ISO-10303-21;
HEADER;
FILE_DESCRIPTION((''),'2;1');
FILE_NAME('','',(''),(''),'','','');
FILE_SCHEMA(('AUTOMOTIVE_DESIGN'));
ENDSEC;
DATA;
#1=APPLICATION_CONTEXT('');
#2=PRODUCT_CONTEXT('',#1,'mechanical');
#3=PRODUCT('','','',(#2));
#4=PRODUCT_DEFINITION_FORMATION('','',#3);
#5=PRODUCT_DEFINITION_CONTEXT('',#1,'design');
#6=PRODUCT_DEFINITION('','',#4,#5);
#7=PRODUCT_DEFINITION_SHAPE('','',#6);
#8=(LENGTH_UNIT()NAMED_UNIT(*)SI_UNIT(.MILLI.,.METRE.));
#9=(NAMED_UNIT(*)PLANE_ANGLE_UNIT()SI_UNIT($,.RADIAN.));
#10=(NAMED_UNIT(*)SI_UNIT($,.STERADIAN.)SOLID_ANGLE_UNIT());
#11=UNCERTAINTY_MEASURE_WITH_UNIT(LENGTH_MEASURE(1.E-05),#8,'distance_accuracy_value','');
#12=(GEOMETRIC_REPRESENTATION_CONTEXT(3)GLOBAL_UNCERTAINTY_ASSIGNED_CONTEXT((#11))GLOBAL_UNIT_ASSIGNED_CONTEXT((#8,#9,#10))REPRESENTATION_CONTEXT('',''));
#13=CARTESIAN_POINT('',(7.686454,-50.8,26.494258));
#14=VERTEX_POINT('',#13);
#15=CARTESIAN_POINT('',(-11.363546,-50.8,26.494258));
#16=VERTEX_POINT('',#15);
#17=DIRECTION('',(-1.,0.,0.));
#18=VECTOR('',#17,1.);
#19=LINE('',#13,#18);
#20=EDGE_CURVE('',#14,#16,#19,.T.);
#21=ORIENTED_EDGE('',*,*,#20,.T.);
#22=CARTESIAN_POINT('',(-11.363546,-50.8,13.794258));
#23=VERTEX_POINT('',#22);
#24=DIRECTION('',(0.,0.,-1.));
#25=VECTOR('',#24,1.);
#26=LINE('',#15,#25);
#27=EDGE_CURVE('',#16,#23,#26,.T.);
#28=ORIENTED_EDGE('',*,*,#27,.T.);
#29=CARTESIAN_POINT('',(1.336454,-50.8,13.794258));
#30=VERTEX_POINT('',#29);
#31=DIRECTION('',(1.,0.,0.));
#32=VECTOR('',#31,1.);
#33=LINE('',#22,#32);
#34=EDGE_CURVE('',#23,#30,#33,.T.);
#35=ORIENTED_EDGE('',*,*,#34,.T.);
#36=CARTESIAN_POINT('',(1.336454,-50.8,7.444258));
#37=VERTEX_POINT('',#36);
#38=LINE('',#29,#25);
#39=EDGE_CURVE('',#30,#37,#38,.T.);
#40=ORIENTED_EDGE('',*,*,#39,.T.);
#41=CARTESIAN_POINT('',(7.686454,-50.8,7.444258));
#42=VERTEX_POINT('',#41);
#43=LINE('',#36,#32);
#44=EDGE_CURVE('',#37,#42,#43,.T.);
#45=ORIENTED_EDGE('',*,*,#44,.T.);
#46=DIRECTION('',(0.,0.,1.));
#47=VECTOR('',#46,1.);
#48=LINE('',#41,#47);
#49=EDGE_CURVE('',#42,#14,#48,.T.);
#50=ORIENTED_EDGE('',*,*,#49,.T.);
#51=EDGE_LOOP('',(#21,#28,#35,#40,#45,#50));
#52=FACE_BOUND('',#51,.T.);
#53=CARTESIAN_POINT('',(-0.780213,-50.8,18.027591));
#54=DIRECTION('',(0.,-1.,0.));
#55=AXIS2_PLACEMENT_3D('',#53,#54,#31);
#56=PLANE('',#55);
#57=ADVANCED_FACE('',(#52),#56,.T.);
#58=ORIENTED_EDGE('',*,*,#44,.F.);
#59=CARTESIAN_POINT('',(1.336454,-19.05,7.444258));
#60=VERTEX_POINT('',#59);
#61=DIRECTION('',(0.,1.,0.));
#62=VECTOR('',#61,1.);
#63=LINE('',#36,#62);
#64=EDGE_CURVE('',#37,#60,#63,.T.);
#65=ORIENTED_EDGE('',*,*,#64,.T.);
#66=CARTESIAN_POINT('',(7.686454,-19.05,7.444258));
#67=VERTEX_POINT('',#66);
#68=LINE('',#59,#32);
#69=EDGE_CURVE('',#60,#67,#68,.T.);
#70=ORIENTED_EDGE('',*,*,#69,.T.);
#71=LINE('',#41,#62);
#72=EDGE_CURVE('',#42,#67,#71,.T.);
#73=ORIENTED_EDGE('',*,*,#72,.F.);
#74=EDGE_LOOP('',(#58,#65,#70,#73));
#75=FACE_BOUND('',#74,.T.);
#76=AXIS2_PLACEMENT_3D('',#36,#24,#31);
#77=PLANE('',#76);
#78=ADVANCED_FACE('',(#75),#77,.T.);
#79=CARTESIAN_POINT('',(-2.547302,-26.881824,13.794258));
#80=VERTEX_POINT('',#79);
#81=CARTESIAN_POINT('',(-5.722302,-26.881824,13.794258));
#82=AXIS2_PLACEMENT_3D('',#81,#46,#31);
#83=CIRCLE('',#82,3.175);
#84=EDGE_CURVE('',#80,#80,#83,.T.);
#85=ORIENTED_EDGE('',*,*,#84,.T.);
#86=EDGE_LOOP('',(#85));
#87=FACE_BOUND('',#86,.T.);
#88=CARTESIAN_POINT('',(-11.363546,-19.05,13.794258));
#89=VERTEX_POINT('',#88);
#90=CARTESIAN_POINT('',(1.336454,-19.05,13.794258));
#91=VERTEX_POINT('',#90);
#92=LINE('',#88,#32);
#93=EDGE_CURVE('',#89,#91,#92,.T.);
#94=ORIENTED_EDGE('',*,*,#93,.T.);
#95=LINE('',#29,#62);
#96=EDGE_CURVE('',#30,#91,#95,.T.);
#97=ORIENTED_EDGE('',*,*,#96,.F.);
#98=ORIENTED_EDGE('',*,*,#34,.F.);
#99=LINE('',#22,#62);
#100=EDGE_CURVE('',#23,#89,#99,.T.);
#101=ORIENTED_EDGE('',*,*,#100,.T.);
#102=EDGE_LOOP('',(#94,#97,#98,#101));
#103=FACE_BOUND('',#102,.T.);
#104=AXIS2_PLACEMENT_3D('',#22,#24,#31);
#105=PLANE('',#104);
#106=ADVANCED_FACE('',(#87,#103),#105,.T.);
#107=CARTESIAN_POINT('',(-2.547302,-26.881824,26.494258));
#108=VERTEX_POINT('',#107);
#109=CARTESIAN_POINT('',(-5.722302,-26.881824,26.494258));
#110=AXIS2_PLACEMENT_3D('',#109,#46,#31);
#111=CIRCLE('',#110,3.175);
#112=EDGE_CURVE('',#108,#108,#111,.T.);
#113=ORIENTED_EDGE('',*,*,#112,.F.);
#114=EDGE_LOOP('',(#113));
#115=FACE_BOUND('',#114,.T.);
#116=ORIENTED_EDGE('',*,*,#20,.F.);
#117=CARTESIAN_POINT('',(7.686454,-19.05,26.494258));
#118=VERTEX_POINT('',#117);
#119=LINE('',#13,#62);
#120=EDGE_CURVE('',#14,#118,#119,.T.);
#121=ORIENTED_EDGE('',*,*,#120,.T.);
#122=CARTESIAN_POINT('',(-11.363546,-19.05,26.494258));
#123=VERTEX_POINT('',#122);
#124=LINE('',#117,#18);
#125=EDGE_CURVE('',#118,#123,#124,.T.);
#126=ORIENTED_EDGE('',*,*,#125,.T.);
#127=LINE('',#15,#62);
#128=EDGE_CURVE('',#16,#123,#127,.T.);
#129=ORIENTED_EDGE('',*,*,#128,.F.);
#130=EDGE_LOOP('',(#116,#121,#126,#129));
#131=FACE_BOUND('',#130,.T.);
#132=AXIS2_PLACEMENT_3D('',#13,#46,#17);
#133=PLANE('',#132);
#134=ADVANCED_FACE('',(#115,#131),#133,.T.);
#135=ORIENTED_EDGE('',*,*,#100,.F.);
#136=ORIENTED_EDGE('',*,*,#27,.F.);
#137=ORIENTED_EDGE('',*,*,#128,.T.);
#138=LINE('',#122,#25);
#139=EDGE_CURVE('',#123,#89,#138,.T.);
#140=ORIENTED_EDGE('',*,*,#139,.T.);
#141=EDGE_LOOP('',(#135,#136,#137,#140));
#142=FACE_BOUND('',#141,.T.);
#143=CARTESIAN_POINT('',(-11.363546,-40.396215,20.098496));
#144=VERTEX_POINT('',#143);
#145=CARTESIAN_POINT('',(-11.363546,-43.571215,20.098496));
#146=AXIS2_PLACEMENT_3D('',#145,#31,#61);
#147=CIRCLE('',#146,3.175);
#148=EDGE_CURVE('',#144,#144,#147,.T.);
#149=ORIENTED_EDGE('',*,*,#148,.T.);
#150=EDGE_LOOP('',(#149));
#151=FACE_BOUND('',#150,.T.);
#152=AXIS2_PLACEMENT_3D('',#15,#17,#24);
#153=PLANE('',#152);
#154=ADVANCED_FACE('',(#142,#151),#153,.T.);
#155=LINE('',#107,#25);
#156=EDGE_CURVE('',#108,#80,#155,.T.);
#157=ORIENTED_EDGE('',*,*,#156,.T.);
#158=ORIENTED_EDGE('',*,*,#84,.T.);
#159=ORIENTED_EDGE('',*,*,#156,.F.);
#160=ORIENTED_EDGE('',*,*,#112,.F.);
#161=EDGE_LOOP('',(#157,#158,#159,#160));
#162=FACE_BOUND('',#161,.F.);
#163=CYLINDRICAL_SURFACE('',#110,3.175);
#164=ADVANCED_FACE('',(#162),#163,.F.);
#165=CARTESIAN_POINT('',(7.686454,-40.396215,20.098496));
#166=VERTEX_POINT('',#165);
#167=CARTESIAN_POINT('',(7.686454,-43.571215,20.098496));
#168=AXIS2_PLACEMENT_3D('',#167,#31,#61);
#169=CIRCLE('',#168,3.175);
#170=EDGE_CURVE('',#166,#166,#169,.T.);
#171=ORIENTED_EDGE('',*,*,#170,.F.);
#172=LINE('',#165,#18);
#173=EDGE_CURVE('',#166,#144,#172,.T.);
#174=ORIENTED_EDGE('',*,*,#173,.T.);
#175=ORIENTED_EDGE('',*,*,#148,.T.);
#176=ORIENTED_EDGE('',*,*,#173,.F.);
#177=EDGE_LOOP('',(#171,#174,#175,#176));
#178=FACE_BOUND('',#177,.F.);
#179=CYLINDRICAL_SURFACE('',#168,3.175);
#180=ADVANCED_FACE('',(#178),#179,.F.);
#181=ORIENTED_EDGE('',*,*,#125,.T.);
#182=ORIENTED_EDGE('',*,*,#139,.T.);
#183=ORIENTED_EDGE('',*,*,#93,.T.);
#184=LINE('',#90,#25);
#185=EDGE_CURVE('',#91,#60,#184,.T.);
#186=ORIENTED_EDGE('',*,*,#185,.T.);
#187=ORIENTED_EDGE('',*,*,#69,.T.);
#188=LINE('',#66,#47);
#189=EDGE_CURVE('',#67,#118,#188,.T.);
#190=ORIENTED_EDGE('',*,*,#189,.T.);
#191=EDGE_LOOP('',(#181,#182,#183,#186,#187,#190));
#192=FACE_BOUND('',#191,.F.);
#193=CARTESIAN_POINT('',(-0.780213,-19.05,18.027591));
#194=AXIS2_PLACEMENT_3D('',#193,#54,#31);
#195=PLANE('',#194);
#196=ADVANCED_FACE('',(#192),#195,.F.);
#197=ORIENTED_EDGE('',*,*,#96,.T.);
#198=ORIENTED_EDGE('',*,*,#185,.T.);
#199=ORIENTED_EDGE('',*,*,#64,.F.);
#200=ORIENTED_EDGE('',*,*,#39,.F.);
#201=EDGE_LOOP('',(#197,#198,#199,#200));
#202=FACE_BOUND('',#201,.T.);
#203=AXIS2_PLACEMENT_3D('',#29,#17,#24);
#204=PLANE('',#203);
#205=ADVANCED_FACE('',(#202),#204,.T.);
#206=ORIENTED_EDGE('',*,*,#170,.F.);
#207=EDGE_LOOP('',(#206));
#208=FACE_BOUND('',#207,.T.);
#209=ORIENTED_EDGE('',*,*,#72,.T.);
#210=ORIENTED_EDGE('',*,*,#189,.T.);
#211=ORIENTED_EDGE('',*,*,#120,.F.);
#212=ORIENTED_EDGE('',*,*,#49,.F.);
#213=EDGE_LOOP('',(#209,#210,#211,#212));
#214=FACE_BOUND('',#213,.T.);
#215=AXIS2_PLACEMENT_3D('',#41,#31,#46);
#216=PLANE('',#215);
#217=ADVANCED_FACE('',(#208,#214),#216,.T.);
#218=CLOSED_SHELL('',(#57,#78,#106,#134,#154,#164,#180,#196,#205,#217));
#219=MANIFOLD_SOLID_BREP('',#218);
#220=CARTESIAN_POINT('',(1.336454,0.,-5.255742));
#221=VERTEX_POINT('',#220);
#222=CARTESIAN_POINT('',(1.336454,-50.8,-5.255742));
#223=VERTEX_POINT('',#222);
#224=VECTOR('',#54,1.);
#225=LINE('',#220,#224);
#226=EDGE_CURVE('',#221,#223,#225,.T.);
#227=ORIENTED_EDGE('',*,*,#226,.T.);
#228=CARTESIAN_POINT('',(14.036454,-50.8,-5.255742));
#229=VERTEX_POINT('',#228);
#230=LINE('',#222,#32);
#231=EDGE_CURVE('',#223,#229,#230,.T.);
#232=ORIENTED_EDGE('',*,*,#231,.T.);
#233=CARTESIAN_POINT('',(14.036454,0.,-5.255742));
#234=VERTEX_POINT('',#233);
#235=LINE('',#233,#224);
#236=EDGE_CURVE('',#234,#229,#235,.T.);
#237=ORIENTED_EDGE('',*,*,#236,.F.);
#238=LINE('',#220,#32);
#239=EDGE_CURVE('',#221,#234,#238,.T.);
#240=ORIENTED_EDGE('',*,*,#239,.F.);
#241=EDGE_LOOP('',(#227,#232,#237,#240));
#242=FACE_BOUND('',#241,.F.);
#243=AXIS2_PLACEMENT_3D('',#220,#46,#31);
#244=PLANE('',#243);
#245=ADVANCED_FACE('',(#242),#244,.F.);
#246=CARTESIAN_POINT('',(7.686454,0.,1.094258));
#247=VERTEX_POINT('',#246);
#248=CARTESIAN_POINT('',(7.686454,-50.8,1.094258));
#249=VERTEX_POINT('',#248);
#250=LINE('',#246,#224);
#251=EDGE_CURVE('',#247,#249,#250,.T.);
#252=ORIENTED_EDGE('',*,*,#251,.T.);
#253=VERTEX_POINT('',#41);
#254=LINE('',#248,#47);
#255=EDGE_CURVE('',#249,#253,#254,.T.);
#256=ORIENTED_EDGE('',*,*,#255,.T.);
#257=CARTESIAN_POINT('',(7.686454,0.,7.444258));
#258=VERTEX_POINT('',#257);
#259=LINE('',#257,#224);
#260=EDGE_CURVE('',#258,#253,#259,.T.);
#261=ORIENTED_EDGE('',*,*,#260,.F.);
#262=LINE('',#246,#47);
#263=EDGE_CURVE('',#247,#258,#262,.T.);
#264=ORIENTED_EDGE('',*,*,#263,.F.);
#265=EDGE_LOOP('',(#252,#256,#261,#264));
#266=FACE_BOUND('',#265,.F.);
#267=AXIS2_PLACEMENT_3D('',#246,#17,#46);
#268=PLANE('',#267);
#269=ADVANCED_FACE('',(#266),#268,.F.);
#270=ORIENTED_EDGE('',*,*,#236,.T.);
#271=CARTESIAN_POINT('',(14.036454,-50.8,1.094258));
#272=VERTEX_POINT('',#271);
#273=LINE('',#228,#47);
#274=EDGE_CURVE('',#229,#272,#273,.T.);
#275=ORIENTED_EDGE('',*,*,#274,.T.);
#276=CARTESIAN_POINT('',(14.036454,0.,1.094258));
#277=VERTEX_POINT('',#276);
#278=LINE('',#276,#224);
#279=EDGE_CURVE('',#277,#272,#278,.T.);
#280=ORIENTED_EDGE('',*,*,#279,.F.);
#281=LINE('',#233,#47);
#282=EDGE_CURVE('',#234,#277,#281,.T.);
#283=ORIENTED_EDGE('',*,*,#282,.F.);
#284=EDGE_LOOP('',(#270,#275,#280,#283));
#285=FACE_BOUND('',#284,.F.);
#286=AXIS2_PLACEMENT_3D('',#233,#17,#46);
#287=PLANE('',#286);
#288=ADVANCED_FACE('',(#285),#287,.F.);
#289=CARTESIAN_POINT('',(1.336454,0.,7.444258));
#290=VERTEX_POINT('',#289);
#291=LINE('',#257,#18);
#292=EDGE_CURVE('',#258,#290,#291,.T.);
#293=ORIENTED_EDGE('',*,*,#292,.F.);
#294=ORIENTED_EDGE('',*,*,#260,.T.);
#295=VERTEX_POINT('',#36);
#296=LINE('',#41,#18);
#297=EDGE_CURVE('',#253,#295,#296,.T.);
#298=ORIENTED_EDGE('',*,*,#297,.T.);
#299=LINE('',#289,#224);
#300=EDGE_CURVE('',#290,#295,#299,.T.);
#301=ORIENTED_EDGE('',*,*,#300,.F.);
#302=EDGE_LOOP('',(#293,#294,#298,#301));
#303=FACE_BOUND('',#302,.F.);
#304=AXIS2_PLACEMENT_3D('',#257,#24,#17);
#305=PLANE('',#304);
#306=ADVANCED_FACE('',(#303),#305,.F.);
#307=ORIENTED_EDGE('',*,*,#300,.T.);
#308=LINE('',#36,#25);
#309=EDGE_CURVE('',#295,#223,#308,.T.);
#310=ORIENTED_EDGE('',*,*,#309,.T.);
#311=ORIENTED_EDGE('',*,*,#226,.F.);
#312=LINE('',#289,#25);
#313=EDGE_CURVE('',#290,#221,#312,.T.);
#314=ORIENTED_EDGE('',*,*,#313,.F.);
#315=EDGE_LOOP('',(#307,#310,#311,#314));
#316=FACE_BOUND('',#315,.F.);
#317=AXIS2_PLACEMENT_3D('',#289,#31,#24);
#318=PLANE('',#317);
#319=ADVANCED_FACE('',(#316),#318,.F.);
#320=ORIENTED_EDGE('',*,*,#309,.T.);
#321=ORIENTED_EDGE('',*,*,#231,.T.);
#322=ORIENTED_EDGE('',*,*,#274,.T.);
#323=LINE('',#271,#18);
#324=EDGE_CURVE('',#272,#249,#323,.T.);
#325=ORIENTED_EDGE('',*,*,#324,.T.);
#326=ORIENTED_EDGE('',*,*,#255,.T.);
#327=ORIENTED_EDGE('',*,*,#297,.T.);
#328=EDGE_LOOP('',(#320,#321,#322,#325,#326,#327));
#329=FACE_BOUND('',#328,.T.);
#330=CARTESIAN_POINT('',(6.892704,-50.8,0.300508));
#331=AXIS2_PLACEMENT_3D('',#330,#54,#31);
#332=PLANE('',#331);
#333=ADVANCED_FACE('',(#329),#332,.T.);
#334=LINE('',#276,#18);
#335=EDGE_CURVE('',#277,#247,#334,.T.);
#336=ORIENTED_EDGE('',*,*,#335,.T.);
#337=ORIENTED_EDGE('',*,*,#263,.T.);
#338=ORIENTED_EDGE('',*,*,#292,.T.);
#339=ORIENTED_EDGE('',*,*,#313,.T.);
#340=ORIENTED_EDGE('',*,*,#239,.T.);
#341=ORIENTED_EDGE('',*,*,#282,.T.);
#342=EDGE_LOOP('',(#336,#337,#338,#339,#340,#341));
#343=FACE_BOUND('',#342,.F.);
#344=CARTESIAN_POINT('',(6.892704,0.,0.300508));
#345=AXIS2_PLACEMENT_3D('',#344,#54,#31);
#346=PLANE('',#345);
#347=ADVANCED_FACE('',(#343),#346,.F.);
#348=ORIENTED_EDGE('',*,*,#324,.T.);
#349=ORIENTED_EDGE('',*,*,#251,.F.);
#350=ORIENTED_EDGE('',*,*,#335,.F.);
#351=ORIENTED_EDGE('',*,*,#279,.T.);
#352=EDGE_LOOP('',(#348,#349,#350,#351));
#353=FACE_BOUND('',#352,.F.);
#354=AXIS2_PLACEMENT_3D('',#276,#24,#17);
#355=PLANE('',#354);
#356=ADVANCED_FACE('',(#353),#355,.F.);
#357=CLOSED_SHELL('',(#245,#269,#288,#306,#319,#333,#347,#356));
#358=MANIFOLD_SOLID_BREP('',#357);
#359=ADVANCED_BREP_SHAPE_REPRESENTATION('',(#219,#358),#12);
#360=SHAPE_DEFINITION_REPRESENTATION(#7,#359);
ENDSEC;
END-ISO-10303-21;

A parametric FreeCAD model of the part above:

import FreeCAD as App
import Part
import Sketcher
from FreeCAD import Vector
Q = App.Units.Quantity

doc = App.newDocument("Part")
body = doc.addObject("PartDesign::Body", "Body")

sketch1 = body.newObject("Sketcher::SketchObject", "Sketch")
sketch1.AttachmentSupport = (doc.getObject("XZ_Plane"), [""])
sketch1.MapMode = "FlatFace"
sketch1.addGeometry(Part.LineSegment(Vector(7.686454, 7.444258, 0), Vector(1.336454, 7.444258, 0)), False)
sketch1.addGeometry(Part.LineSegment(Vector(1.336454, 7.444258, 0), Vector(1.336454, -5.255742, 0)), False)
sketch1.addGeometry(Part.LineSegment(Vector(1.336454, -5.255742, 0), Vector(14.036454, -5.255742, 0)), False)
sketch1.addGeometry(Part.LineSegment(Vector(14.036454, -5.255742, 0), Vector(14.036454, 1.094258, 0)), False)
sketch1.addGeometry(Part.LineSegment(Vector(14.036454, 1.094258, 0), Vector(7.686454, 1.094258, 0)), False)
sketch1.addGeometry(Part.LineSegment(Vector(7.686454, 1.094258, 0), Vector(7.686454, 7.444258, 0)), False)
sketch1.addConstraint(Sketcher.Constraint("Coincident", 0, 2, 1, 1))
sketch1.addConstraint(Sketcher.Constraint("Coincident", 1, 2, 2, 1))
sketch1.addConstraint(Sketcher.Constraint("Coincident", 2, 2, 3, 1))
sketch1.addConstraint(Sketcher.Constraint("Coincident", 3, 2, 4, 1))
sketch1.addConstraint(Sketcher.Constraint("Coincident", 4, 2, 5, 1))
sketch1.addConstraint(Sketcher.Constraint("Coincident", 5, 2, 0, 1))
sketch1.addConstraint(Sketcher.Constraint("Horizontal", 0))
sketch1.addConstraint(Sketcher.Constraint("Vertical", 1))
sketch1.addConstraint(Sketcher.Constraint("Horizontal", 2))
sketch1.addConstraint(Sketcher.Constraint("Vertical", 3))
sketch1.addConstraint(Sketcher.Constraint("Horizontal", 4))
sketch1.addConstraint(Sketcher.Constraint("Vertical", 5))
sketch1.addConstraint(Sketcher.Constraint("Equal", 0, 4))
sketch1.addConstraint(Sketcher.Constraint("Equal", 2, 1))
sketch1.addConstraint(Sketcher.Constraint("Equal", 4, 3))
sketch1.addConstraint(Sketcher.Constraint("DistanceX", 2, 1, 2, 2, Q("0.5 in")))
sketch1.addConstraint(Sketcher.Constraint("DistanceY", 1, 2, -1, 1, 5.255742))
sketch1.addConstraint(Sketcher.Constraint("DistanceX", -1, 1, 0, 2, 1.336454))
pad1 = body.newObject("PartDesign::Pad", "Pad")
pad1.Profile = sketch1
pad1.Length = Q("2 in")
body2 = doc.addObject("PartDesign::Body", "Body001")

sketch2 = body2.newObject("Sketcher::SketchObject", "Sketch001")
sketch2.AttachmentSupport = (doc.getObject("XZ_Plane001"), [""])
sketch2.MapMode = "FlatFace"
sketch2.AttachmentOffset = App.Placement(Vector(0, 0, 2 * 25.4), App.Rotation())
sketch2.addGeometry(Part.LineSegment(Vector(1.336454, 13.794258, 0), Vector(1.336454, 7.444258, 0)), False)
sketch2.addGeometry(Part.LineSegment(Vector(1.336454, 7.444258, 0), Vector(7.686454, 7.444258, 0)), False)
sketch2.addGeometry(Part.LineSegment(Vector(7.686454, 7.444258, 0), Vector(7.686454, 26.494258, 0)), False)
sketch2.addGeometry(Part.LineSegment(Vector(7.686454, 26.494258, 0), Vector(-11.363546, 26.494258, 0)), False)
sketch2.addGeometry(Part.LineSegment(Vector(-11.363546, 26.494258, 0), Vector(-11.363546, 13.794258, 0)), False)
sketch2.addGeometry(Part.LineSegment(Vector(-11.363546, 13.794258, 0), Vector(1.336454, 13.794258, 0)), False)
sketch2.addConstraint(Sketcher.Constraint("Coincident", 0, 2, 1, 1))
sketch2.addConstraint(Sketcher.Constraint("Coincident", 1, 2, 2, 1))
sketch2.addConstraint(Sketcher.Constraint("Coincident", 2, 2, 3, 1))
sketch2.addConstraint(Sketcher.Constraint("Coincident", 3, 2, 4, 1))
sketch2.addConstraint(Sketcher.Constraint("Coincident", 4, 2, 5, 1))
sketch2.addConstraint(Sketcher.Constraint("Coincident", 5, 2, 0, 1))
sketch2.addConstraint(Sketcher.Constraint("Vertical", 0))
sketch2.addConstraint(Sketcher.Constraint("Horizontal", 1))
sketch2.addConstraint(Sketcher.Constraint("Vertical", 2))
sketch2.addConstraint(Sketcher.Constraint("Horizontal", 3))
sketch2.addConstraint(Sketcher.Constraint("Vertical", 4))
sketch2.addConstraint(Sketcher.Constraint("Horizontal", 5))
sketch2.addConstraint(Sketcher.Constraint("Equal", 1, 0))
sketch2.addConstraint(Sketcher.Constraint("Equal", 3, 2))
sketch2.addConstraint(Sketcher.Constraint("DistanceX", 5, 1, 5, 2, Q("0.5 in")))
sketch2.addConstraint(Sketcher.Constraint("DistanceX", 1, 1, 1, 2, Q("0.25 in")))
sketch2.addConstraint(Sketcher.Constraint("DistanceX", -1, 1, 0, 2, 1.336454))
sketch2.addConstraint(Sketcher.Constraint("DistanceY", -1, 1, 0, 2, 7.444258))
pad2 = body2.newObject("PartDesign::Pad", "Pad001")
pad2.Profile = sketch2
pad2.Length = Q("1.25 in")
pad2.Reversed = True

sketch3 = body2.newObject("Sketcher::SketchObject", "Sketch002")
sketch3.AttachmentSupport = (doc.getObject("YZ_Plane001"), [""])
sketch3.MapMode = "FlatFace"
sketch3.AttachmentOffset = App.Placement(Vector(0, 0, 7.686454), App.Rotation())
sketch3.addGeometry(Part.Circle(Vector(-43.571215, 20.098496, 0), Vector(0, 0, 1), 3.175), False)
sketch3.addConstraint(Sketcher.Constraint("Diameter", 0, Q("0.25 in")))
sketch3.addConstraint(Sketcher.Constraint("DistanceX", 0, 3, -1, 1, 43.571215))
sketch3.addConstraint(Sketcher.Constraint("DistanceY", -1, 1, 0, 3, 20.098496))
pocket1 = body2.newObject("PartDesign::Pocket", "Pocket")
pocket1.Profile = sketch3
pocket1.Type = "ThroughAll"

sketch4 = body2.newObject("Sketcher::SketchObject", "Sketch003")
sketch4.AttachmentSupport = (doc.getObject("XY_Plane001"), [""])
sketch4.MapMode = "FlatFace"
sketch4.AttachmentOffset = App.Placement(Vector(0, 0, 26.494258), App.Rotation())
sketch4.addGeometry(Part.Circle(Vector(-5.722302, -26.881824, 0), Vector(0, 0, 1), 3.175), False)
sketch4.addConstraint(Sketcher.Constraint("Diameter", 0, Q("0.25 in")))
sketch4.addConstraint(Sketcher.Constraint("DistanceX", 0, 3, -1, 1, 5.722302))
sketch4.addConstraint(Sketcher.Constraint("DistanceY", 0, 3, -1, 1, 26.881824))
pocket2 = body2.newObject("PartDesign::Pocket", "Pocket001")
pocket2.Profile = sketch4
pocket2.Type = "ThroughAll"

doc.recompute()
